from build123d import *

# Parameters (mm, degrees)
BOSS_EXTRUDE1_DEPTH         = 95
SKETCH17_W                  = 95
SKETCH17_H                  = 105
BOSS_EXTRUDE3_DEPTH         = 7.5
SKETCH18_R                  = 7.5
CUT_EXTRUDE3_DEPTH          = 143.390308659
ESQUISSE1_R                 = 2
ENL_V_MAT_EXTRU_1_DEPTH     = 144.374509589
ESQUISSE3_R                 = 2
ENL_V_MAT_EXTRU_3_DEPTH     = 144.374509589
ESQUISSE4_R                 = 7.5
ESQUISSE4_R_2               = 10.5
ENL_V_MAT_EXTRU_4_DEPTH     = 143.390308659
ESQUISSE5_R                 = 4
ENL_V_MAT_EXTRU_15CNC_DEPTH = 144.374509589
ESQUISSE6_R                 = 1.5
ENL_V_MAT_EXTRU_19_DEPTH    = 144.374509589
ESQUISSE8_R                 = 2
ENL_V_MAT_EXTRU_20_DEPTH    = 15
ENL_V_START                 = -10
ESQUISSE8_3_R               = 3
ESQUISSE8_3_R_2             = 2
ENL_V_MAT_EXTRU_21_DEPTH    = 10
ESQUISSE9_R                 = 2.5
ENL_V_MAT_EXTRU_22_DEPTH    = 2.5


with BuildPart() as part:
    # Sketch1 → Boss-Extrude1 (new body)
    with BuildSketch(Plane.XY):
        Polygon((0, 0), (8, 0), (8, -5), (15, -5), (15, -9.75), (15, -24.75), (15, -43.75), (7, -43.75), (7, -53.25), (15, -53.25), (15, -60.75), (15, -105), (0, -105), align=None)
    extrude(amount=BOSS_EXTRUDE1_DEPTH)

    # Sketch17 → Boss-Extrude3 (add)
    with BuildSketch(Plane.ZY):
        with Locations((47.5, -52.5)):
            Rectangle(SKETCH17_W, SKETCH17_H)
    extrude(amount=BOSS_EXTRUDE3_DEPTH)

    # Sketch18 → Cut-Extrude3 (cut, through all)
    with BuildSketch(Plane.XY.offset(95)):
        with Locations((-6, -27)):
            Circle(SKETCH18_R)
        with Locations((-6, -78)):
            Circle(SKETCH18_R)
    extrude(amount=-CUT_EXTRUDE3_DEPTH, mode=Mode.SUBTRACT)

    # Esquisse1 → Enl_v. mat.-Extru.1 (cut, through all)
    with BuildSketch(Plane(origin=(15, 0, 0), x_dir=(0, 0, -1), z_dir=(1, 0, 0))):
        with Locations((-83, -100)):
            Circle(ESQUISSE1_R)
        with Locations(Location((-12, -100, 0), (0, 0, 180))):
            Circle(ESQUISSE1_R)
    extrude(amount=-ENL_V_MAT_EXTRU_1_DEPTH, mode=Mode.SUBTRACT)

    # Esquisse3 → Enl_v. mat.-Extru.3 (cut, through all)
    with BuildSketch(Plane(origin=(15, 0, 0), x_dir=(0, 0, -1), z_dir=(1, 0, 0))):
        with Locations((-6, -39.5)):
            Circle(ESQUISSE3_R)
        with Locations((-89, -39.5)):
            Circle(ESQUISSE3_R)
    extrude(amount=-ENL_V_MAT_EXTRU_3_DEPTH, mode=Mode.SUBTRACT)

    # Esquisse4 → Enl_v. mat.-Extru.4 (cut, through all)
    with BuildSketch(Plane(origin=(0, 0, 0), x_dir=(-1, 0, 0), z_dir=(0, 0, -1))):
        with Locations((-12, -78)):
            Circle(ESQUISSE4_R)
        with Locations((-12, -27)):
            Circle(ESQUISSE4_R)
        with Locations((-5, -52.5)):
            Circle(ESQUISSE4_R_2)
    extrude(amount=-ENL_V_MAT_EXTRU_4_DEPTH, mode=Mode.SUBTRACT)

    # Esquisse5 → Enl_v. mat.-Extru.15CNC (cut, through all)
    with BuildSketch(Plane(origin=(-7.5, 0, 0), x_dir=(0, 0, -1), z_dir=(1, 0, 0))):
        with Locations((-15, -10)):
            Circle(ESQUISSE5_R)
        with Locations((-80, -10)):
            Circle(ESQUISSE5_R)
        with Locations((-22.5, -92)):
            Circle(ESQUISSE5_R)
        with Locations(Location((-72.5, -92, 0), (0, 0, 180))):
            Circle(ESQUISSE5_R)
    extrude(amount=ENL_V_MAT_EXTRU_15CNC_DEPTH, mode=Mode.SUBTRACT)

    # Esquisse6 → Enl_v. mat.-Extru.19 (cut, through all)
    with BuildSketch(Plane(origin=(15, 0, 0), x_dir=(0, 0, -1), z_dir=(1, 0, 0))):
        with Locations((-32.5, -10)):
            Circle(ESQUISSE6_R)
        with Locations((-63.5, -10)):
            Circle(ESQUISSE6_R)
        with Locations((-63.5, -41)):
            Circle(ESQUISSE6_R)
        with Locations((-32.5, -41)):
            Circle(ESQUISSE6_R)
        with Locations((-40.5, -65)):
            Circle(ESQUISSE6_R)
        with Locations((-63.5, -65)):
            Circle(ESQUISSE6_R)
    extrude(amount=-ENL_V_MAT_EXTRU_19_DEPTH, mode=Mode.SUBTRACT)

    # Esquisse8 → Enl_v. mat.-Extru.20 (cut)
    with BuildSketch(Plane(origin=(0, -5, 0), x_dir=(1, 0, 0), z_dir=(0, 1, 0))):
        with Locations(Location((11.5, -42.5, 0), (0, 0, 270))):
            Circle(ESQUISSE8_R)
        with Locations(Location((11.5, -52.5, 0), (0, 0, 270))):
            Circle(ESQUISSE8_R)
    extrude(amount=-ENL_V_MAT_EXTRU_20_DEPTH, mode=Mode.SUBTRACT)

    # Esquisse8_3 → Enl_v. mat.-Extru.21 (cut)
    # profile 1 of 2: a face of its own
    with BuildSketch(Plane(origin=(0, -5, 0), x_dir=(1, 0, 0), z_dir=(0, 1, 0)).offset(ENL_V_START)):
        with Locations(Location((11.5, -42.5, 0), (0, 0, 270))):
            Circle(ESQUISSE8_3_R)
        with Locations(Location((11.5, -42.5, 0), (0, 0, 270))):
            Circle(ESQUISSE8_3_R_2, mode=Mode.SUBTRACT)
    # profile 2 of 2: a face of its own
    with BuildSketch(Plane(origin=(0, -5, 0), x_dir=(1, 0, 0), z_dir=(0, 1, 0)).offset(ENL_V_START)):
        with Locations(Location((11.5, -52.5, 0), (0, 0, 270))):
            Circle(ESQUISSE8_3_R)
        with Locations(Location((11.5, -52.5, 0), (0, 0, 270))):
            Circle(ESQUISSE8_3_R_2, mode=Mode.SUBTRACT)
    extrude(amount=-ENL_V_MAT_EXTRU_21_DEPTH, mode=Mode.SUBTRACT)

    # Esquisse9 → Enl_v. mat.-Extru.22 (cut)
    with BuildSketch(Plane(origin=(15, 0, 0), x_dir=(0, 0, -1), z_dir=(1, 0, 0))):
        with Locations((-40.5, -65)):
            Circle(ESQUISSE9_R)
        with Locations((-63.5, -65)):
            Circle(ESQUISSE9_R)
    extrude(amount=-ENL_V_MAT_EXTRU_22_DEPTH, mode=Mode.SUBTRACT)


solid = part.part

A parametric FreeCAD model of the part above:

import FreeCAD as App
import Part
import Sketcher
from FreeCAD import Vector
Q = App.Units.Quantity

doc = App.newDocument("Part")
body = doc.addObject("PartDesign::Body", "Body")

sketch1 = body.newObject("Sketcher::SketchObject", "Sketch")
sketch1.AttachmentSupport = (doc.getObject("XY_Plane"), [""])
sketch1.MapMode = "FlatFace"
sketch1.addGeometry([
    Part.LineSegment(Vector(8, 0, 0), Vector(0, 0, 0)),
    Part.LineSegment(Vector(0, 0, 0), Vector(0, -105, 0)),
    Part.LineSegment(Vector(0, -105, 0), Vector(15, -105, 0)),
    Part.LineSegment(Vector(15, -105, 0), Vector(15, -53, 0)),
    Part.LineSegment(Vector(15, -53, 0), Vector(7, -53, 0)),
    Part.LineSegment(Vector(7, -53, 0), Vector(7, -44, 0)),
    Part.LineSegment(Vector(7, -44, 0), Vector(15, -44, 0)),
    Part.LineSegment(Vector(15, -44, 0), Vector(15, -5, 0)),
    Part.LineSegment(Vector(15, -5, 0), Vector(8, -5, 0)),
    Part.LineSegment(Vector(8, -5, 0), Vector(8, 0, 0)),
], False)
sketch1.addConstraint([
    Sketcher.Constraint("Coincident", 0, 2, 1, 1),
    Sketcher.Constraint("Coincident", 1, 2, 2, 1),
    Sketcher.Constraint("Coincident", 2, 2, 3, 1),
    Sketcher.Constraint("Coincident", 3, 2, 4, 1),
    Sketcher.Constraint("Coincident", 4, 2, 5, 1),
    Sketcher.Constraint("Coincident", 5, 2, 6, 1),
    Sketcher.Constraint("Coincident", 6, 2, 7, 1),
    Sketcher.Constraint("Coincident", 7, 2, 8, 1),
    Sketcher.Constraint("Coincident", 8, 2, 9, 1),
    Sketcher.Constraint("Coincident", 9, 2, 0, 1),
    Sketcher.Constraint("Horizontal", 0),
    Sketcher.Constraint("Vertical", 1),
    Sketcher.Constraint("Horizontal", 2),
    Sketcher.Constraint("Vertical", 3),
    Sketcher.Constraint("Horizontal", 4),
    Sketcher.Constraint("Vertical", 5),
    Sketcher.Constraint("Horizontal", 6),
    Sketcher.Constraint("Vertical", 7),
    Sketcher.Constraint("Horizontal", 8),
    Sketcher.Constraint("Vertical", 9),
    Sketcher.Constraint("Coincident", 0, 2, -1, 1),
    Sketcher.Constraint("Vertical", 3, 2, 6, 2),
    Sketcher.Constraint("Equal", 0, 4),
    Sketcher.Constraint("DistanceX", 0, 2, 0, 1, Q("8 mm")),
    Sketcher.Constraint("DistanceX", 2, 1, 2, 2, Q("15 mm")),
    Sketcher.Constraint("DistanceY", 1, 2, 1, 1, Q("105 mm")),
    Sketcher.Constraint("DistanceY", 9, 1, 9, 2, Q("5 mm")),
    Sketcher.Constraint("DistanceY", 5, 1, 5, 2, Q("9.5 mm")),
    Sketcher.Constraint("DistanceY", 3, 1, 3, 2, Q("51.75 mm")),
])
pad1 = body.newObject("PartDesign::Pad", "Pad")
pad1.Profile = sketch1
pad1.Length = 95

sketch2 = body.newObject("Sketcher::SketchObject", "Sketch001")
sketch2.AttachmentSupport = (doc.getObject("YZ_Plane"), [""])
sketch2.MapMode = "FlatFace"
sketch2.addGeometry([
    Part.LineSegment(Vector(0, 0, 0), Vector(-105, 0, 0)),
    Part.LineSegment(Vector(-105, 0, 0), Vector(-105, 95, 0)),
    Part.LineSegment(Vector(-105, 95, 0), Vector(0, 95, 0)),
    Part.LineSegment(Vector(0, 95, 0), Vector(0, 0, 0)),
], False)
sketch2.addConstraint([
    Sketcher.Constraint("Coincident", 0, 2, 1, 1),
    Sketcher.Constraint("Coincident", 1, 2, 2, 1),
    Sketcher.Constraint("Coincident", 2, 2, 3, 1),
    Sketcher.Constraint("Coincident", 3, 2, 0, 1),
    Sketcher.Constraint("Horizontal", 0),
    Sketcher.Constraint("Vertical", 1),
    Sketcher.Constraint("Horizontal", 2),
    Sketcher.Constraint("Vertical", 3),
    Sketcher.Constraint("Coincident", 3, 2, -1, 1),
    Sketcher.Constraint("DistanceX", 0, 2, 0, 1, Q("105 mm")),
    Sketcher.Constraint("DistanceY", 1, 1, 1, 2, Q("95 mm")),
])
pad2 = body.newObject("PartDesign::Pad", "Pad001")
pad2.Profile = sketch2
pad2.Length = 7.5
pad2.Reversed = True

sketch3 = body.newObject("Sketcher::SketchObject", "Sketch002")
sketch3.AttachmentSupport = (doc.getObject("XY_Plane"), [""])
sketch3.MapMode = "FlatFace"
sketch3.AttachmentOffset = App.Placement(Vector(0, 0, 95), App.Rotation())
sketch3.addGeometry([
    Part.Circle(Vector(-6, -27, 0), Vector(0, 0, 1), 8),
    Part.Circle(Vector(-6, -78, 0), Vector(0, 0, 1), 8),
], False)
sketch3.addConstraint([
    Sketcher.Constraint("Equal", 0, 1),
    Sketcher.Constraint("Vertical", 0, 3, 1, 3),
    Sketcher.Constraint("Diameter", 0, Q("15 mm")),
    Sketcher.Constraint("DistanceX", 0, 3, -1, 1, Q("6 mm")),
    Sketcher.Constraint("DistanceY", 0, 3, -1, 1, Q("27 mm")),
    Sketcher.Constraint("DistanceY", 1, 3, -1, 1, Q("78 mm")),
])
pocket1 = body.newObject("PartDesign::Pocket", "Pocket")
pocket1.Profile = sketch3
pocket1.Type = "ThroughAll"

sketch4 = body.newObject("Sketcher::SketchObject", "Sketch003")
sketch4.AttachmentSupport = (doc.getObject("YZ_Plane"), [""])
sketch4.MapMode = "FlatFace"
sketch4.AttachmentOffset = App.Placement(Vector(0, 0, 15), App.Rotation())
sketch4.addGeometry([
    Part.Circle(Vector(-100, 83, 0), Vector(0, 0, 1), 2),
    Part.Circle(Vector(-100, 12, 0), Vector(0, 0, 1), 2),
], False)
sketch4.addConstraint([
    Sketcher.Constraint("Equal", 0, 1),
    Sketcher.Constraint("Vertical", 0, 3, 1, 3),
    Sketcher.Constraint("Diameter", 0, Q("4 mm")),
    Sketcher.Constraint("DistanceX", 0, 3, -1, 1, Q("100 mm")),
    Sketcher.Constraint("DistanceY", -1, 1, 0, 3, Q("83 mm")),
    Sketcher.Constraint("DistanceY", -1, 1, 1, 3, Q("12 mm")),
])
pocket2 = body.newObject("PartDesign::Pocket", "Pocket001")
pocket2.Profile = sketch4
pocket2.Type = "ThroughAll"

sketch5 = body.newObject("Sketcher::SketchObject", "Sketch004")
sketch5.AttachmentSupport = (doc.getObject("YZ_Plane"), [""])
sketch5.MapMode = "FlatFace"
sketch5.AttachmentOffset = App.Placement(Vector(0, 0, 15), App.Rotation())
sketch5.addGeometry([
    Part.Circle(Vector(-39.5, 6, 0), Vector(0, 0, 1), 2),
    Part.Circle(Vector(-39.5, 89, 0), Vector(0, 0, 1), 2),
], False)
sketch5.addConstraint([
    Sketcher.Constraint("Equal", 0, 1),
    Sketcher.Constraint("Vertical", 0, 3, 1, 3),
    Sketcher.Constraint("Diameter", 0, Q("4 mm")),
    Sketcher.Constraint("DistanceY", -1, 1, 0, 3, Q("6 mm")),
    Sketcher.Constraint("DistanceY", -1, 1, 1, 3, Q("89 mm")),
    Sketcher.Constraint("DistanceX", 0, 3, -1, 1, Q("39.5 mm")),
])
pocket3 = body.newObject("PartDesign::Pocket", "Pocket002")
pocket3.Profile = sketch5
pocket3.Type = "ThroughAll"

sketch6 = body.newObject("Sketcher::SketchObject", "Sketch005")
sketch6.AttachmentSupport = (doc.getObject("XY_Plane"), [""])
sketch6.MapMode = "FlatFace"
sketch6.addGeometry([
    Part.Circle(Vector(12, -78, 0), Vector(0, 0, 1), 8),
    Part.Circle(Vector(12, -27, 0), Vector(0, 0, 1), 8),
    Part.Circle(Vector(5, -52, 0), Vector(0, 0, 1), 10),
], False)
sketch6.addConstraint([
    Sketcher.Constraint("Equal", 0, 1),
    Sketcher.Constraint("Vertical", 0, 3, 1, 3),
    Sketcher.Constraint("Diameter", 0, Q("15 mm")),
    Sketcher.Constraint("Diameter", 2, Q("21 mm")),
    Sketcher.Constraint("DistanceX", -1, 1, 0, 3, Q("12 mm")),
    Sketcher.Constraint("DistanceY", 0, 3, -1, 1, Q("78 mm")),
    Sketcher.Constraint("DistanceY", 1, 3, -1, 1, Q("27 mm")),
    Sketcher.Constraint("DistanceX", -1, 1, 2, 3, Q("5 mm")),
    Sketcher.Constraint("DistanceY", 2, 3, -1, 1, Q("52.5 mm")),
])
pocket4 = body.newObject("PartDesign::Pocket", "Pocket003")
pocket4.Profile = sketch6
pocket4.Type = "ThroughAll"
pocket4.Reversed = True

sketch7 = body.newObject("Sketcher::SketchObject", "Sketch006")
sketch7.AttachmentSupport = (doc.getObject("YZ_Plane"), [""])
sketch7.MapMode = "FlatFace"
sketch7.AttachmentOffset = App.Placement(Vector(0, 0, -7.5), App.Rotation())
sketch7.addGeometry([
    Part.Circle(Vector(-10, 15, 0), Vector(0, 0, 1), 4),
    Part.Circle(Vector(-10, 80, 0), Vector(0, 0, 1), 4),
    Part.Circle(Vector(-92, 22.5, 0), Vector(0, 0, 1), 4),
    Part.Circle(Vector(-92, 72.5, 0), Vector(0, 0, 1), 4),
], False)
sketch7.addConstraint([
    Sketcher.Constraint("Equal", 0, 1),
    Sketcher.Constraint("Equal", 1, 2),
    Sketcher.Constraint("Equal", 2, 3),
    Sketcher.Constraint("Vertical", 0, 3, 1, 3),
    Sketcher.Constraint("Vertical", 2, 3, 3, 3),
    Sketcher.Constraint("Diameter", 0, Q("8 mm")),
    Sketcher.Constraint("DistanceX", 0, 3, -1, 1, Q("10 mm")),
    Sketcher.Constraint("DistanceY", -1, 1, 0, 3, Q("15 mm")),
    Sketcher.Constraint("DistanceY", -1, 1, 1, 3, Q("80 mm")),
    Sketcher.Constraint("DistanceX", 2, 3, -1, 1, Q("92 mm")),
    Sketcher.Constraint("DistanceY", 2, 3, 3, 3, Q("50 mm")),
    Sketcher.Constraint("DistanceY", -1, 1, 2, 3, Q("22.5 mm")),
])
pocket5 = body.newObject("PartDesign::Pocket", "Pocket004")
pocket5.Profile = sketch7
pocket5.Type = "ThroughAll"
pocket5.Reversed = True

sketch8 = body.newObject("Sketcher::SketchObject", "Sketch007")
sketch8.AttachmentSupport = (doc.getObject("YZ_Plane"), [""])
sketch8.MapMode = "FlatFace"
sketch8.AttachmentOffset = App.Placement(Vector(0, 0, 15), App.Rotation())
sketch8.addGeometry([
    Part.Circle(Vector(-10, 32.5, 0), Vector(0, 0, 1), 1.5),
    Part.Circle(Vector(-10, 63.5, 0), Vector(0, 0, 1), 1.5),
    Part.Circle(Vector(-41, 63.5, 0), Vector(0, 0, 1), 1.5),
    Part.Circle(Vector(-41, 32.5, 0), Vector(0, 0, 1), 1.5),
    Part.Circle(Vector(-65, 40.5, 0), Vector(0, 0, 1), 1.5),
    Part.Circle(Vector(-65, 63.5, 0), Vector(0, 0, 1), 1.5),
], False)
sketch8.addConstraint([
    Sketcher.Constraint("Equal", 0, 1),
    Sketcher.Constraint("Equal", 1, 2),
    Sketcher.Constraint("Equal", 2, 3),
    Sketcher.Constraint("Equal", 3, 4),
    Sketcher.Constraint("Equal", 4, 5),
    Sketcher.Constraint("Horizontal", 1, 3, 2, 3),
    Sketcher.Constraint("Horizontal", 0, 3, 3, 3),
    Sketcher.Constraint("Horizontal", 2, 3, 5, 3),
    Sketcher.Constraint("Vertical", 0, 3, 1, 3),
    Sketcher.Constraint("Vertical", 2, 3, 3, 3),
    Sketcher.Constraint("Vertical", 4, 3, 5, 3),
    Sketcher.Constraint("Diameter", 0, Q("3 mm")),
    Sketcher.Constraint("DistanceX", 0, 3, -1, 1, Q("10 mm")),
    Sketcher.Constraint("DistanceX", 2, 3, -1, 1, Q("41 mm")),
    Sketcher.Constraint("DistanceX", 4, 3, -1, 1, Q("65 mm")),
    Sketcher.Constraint("DistanceY", 0, 3, 1, 3, Q("31 mm")),
    Sketcher.Constraint("DistanceY", 3, 3, 4, 3, Q("8 mm")),
    Sketcher.Constraint("DistanceY", -1, 1, 0, 3, Q("32.5 mm")),
])
pocket6 = body.newObject("PartDesign::Pocket", "Pocket005")
pocket6.Profile = sketch8
pocket6.Type = "ThroughAll"

sketch9 = body.newObject("Sketcher::SketchObject", "Sketch008")
sketch9.AttachmentSupport = (doc.getObject("XZ_Plane"), [""])
sketch9.MapMode = "FlatFace"
sketch9.AttachmentOffset = App.Placement(Vector(0, 0, 5), App.Rotation())
sketch9.addGeometry([
    Part.Circle(Vector(11.5, 42.5, 0), Vector(0, 0, 1), 2),
    Part.Circle(Vector(11.5, 52.5, 0), Vector(0, 0, 1), 2),
], False)
sketch9.addConstraint([
    Sketcher.Constraint("Equal", 0, 1),
    Sketcher.Constraint("Vertical", 0, 3, 1, 3),
    Sketcher.Constraint("Diameter", 0, Q("4 mm")),
    Sketcher.Constraint("DistanceY", 0, 3, 1, 3, Q("10 mm")),
    Sketcher.Constraint("DistanceX", -1, 1, 0, 3, Q("11.5 mm")),
    Sketcher.Constraint("DistanceY", -1, 1, 0, 3, Q("42.5 mm")),
])
pocket7 = body.newObject("PartDesign::Pocket", "Pocket006")
pocket7.Profile = sketch9
pocket7.Length = 15
pocket7.Reversed = True

sketch10 = body.newObject("Sketcher::SketchObject", "Sketch009")
sketch10.AttachmentSupport = (doc.getObject("XZ_Plane"), [""])
sketch10.MapMode = "FlatFace"
sketch10.AttachmentOffset = App.Placement(Vector(0, 0, 15), App.Rotation())
sketch10.addGeometry([
    Part.Circle(Vector(11.5, 42.5, 0), Vector(0, 0, 1), 3),
    Part.Circle(Vector(11.5, 42.5, 0), Vector(0, 0, 1), 2),
    Part.Circle(Vector(11.5, 52.5, 0), Vector(0, 0, 1), 3),
    Part.Circle(Vector(11.5, 52.5, 0), Vector(0, 0, 1), 2),
], False)
sketch10.addConstraint([
    Sketcher.Constraint("Coincident", 1, 3, 0, 3),
    Sketcher.Constraint("Coincident", 3, 3, 2, 3),
    Sketcher.Constraint("Equal", 0, 2),
    Sketcher.Constraint("Equal", 1, 3),
    Sketcher.Constraint("Vertical", 1, 3, 2, 3),
    Sketcher.Constraint("Diameter", 0, Q("6 mm")),
    Sketcher.Constraint("Diameter", 1, Q("4 mm")),
    Sketcher.Constraint("DistanceY", 0, 3, 2, 3, Q("10 mm")),
    Sketcher.Constraint("DistanceX", -1, 1, 0, 3, Q("11.5 mm")),
    Sketcher.Constraint("DistanceY", -1, 1, 0, 3, Q("42.5 mm")),
])
pocket8 = body.newObject("PartDesign::Pocket", "Pocket007")
pocket8.Profile = sketch10
pocket8.Length = 10
pocket8.Reversed = True

sketch11 = body.newObject("Sketcher::SketchObject", "Sketch010")
sketch11.AttachmentSupport = (doc.getObject("YZ_Plane"), [""])
sketch11.MapMode = "FlatFace"
sketch11.AttachmentOffset = App.Placement(Vector(0, 0, 15), App.Rotation())
sketch11.addGeometry([
    Part.Circle(Vector(-65, 40.5, 0), Vector(0, 0, 1), 2.5),
    Part.Circle(Vector(-65, 63.5, 0), Vector(0, 0, 1), 2.5),
], False)
sketch11.addConstraint([
    Sketcher.Constraint("Equal", 0, 1),
    Sketcher.Constraint("Vertical", 0, 3, 1, 3),
    Sketcher.Constraint("Diameter", 0, Q("5 mm")),
    Sketcher.Constraint("DistanceX", 0, 3, -1, 1, Q("65 mm")),
    Sketcher.Constraint("DistanceY", 0, 3, 1, 3, Q("23 mm")),
    Sketcher.Constraint("DistanceY", -1, 1, 0, 3, Q("40.5 mm")),
])
pocket9 = body.newObject("PartDesign::Pocket", "Pocket008")
pocket9.Profile = sketch11
pocket9.Length = 2.5

doc.recompute()
